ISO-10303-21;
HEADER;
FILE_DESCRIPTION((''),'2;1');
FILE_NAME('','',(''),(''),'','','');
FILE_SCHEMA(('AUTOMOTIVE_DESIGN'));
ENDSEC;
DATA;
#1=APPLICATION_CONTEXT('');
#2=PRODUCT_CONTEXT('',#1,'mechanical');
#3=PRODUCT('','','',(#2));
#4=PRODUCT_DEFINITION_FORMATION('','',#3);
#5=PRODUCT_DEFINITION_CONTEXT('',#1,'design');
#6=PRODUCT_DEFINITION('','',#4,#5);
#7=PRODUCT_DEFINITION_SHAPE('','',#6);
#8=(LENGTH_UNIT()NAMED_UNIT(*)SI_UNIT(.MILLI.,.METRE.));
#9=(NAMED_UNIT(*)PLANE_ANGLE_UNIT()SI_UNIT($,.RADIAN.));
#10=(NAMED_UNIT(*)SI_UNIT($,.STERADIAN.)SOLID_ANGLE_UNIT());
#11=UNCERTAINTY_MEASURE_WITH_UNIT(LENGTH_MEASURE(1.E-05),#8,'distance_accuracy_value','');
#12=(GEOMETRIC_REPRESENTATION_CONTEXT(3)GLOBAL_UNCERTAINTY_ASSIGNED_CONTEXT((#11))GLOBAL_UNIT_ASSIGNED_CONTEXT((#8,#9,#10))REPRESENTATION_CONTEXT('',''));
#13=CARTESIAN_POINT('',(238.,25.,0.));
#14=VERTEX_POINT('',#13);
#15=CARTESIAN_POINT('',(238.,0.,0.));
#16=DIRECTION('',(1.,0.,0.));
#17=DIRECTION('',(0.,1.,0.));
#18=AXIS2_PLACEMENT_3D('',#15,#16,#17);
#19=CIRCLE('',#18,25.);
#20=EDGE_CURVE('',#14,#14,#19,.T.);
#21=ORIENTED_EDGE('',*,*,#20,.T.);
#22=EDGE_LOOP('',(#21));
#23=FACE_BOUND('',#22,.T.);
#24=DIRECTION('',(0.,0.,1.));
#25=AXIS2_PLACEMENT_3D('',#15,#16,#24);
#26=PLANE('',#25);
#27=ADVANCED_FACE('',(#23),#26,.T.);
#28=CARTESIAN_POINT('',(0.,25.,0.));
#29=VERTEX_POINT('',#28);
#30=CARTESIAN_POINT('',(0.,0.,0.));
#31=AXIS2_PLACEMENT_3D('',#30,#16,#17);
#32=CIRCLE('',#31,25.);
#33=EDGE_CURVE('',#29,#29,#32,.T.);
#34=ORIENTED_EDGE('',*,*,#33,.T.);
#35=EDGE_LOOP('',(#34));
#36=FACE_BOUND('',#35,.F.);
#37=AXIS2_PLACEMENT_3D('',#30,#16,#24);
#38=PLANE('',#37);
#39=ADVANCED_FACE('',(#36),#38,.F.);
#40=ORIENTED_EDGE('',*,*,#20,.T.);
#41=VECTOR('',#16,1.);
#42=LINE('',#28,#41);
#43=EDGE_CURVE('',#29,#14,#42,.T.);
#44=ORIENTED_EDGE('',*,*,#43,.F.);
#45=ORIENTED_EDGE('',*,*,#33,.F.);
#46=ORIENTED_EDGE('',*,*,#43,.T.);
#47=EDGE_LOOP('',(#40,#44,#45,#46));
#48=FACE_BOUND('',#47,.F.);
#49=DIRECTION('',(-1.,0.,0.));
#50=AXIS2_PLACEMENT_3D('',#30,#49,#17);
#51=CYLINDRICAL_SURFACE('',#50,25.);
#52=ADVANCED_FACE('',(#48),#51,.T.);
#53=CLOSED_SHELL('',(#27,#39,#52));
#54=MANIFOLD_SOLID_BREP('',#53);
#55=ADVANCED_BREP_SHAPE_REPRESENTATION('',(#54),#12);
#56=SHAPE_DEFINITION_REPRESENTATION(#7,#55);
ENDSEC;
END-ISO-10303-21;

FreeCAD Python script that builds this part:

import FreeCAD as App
import Part
import Sketcher
from FreeCAD import Vector
Q = App.Units.Quantity

doc = App.newDocument("Part")
body = doc.addObject("PartDesign::Body", "Body")

# Sketch on YZ plane
sketch1 = doc.addObject("Sketcher::SketchObject", "Sketch")
body.addObject(sketch1)
sketch1.AttachmentSupport = (doc.YZ_Plane, [""])
sketch1.MapMode = "FlatFace"
sketch1.addGeometry(Part.Circle(Vector(0, 0, 0), Vector(0, 0, 1), 25), False)
sketch1.addConstraint([
    Sketcher.Constraint("Coincident", 0, 3, -1, 1),
    Sketcher.Constraint("Diameter", 0, Q("50 mm")),
])
pad1 = doc.addObject("PartDesign::Pad", "Pad")
body.addObject(pad1)
pad1.Profile = sketch1
pad1.Length = 238

doc.recompute()
